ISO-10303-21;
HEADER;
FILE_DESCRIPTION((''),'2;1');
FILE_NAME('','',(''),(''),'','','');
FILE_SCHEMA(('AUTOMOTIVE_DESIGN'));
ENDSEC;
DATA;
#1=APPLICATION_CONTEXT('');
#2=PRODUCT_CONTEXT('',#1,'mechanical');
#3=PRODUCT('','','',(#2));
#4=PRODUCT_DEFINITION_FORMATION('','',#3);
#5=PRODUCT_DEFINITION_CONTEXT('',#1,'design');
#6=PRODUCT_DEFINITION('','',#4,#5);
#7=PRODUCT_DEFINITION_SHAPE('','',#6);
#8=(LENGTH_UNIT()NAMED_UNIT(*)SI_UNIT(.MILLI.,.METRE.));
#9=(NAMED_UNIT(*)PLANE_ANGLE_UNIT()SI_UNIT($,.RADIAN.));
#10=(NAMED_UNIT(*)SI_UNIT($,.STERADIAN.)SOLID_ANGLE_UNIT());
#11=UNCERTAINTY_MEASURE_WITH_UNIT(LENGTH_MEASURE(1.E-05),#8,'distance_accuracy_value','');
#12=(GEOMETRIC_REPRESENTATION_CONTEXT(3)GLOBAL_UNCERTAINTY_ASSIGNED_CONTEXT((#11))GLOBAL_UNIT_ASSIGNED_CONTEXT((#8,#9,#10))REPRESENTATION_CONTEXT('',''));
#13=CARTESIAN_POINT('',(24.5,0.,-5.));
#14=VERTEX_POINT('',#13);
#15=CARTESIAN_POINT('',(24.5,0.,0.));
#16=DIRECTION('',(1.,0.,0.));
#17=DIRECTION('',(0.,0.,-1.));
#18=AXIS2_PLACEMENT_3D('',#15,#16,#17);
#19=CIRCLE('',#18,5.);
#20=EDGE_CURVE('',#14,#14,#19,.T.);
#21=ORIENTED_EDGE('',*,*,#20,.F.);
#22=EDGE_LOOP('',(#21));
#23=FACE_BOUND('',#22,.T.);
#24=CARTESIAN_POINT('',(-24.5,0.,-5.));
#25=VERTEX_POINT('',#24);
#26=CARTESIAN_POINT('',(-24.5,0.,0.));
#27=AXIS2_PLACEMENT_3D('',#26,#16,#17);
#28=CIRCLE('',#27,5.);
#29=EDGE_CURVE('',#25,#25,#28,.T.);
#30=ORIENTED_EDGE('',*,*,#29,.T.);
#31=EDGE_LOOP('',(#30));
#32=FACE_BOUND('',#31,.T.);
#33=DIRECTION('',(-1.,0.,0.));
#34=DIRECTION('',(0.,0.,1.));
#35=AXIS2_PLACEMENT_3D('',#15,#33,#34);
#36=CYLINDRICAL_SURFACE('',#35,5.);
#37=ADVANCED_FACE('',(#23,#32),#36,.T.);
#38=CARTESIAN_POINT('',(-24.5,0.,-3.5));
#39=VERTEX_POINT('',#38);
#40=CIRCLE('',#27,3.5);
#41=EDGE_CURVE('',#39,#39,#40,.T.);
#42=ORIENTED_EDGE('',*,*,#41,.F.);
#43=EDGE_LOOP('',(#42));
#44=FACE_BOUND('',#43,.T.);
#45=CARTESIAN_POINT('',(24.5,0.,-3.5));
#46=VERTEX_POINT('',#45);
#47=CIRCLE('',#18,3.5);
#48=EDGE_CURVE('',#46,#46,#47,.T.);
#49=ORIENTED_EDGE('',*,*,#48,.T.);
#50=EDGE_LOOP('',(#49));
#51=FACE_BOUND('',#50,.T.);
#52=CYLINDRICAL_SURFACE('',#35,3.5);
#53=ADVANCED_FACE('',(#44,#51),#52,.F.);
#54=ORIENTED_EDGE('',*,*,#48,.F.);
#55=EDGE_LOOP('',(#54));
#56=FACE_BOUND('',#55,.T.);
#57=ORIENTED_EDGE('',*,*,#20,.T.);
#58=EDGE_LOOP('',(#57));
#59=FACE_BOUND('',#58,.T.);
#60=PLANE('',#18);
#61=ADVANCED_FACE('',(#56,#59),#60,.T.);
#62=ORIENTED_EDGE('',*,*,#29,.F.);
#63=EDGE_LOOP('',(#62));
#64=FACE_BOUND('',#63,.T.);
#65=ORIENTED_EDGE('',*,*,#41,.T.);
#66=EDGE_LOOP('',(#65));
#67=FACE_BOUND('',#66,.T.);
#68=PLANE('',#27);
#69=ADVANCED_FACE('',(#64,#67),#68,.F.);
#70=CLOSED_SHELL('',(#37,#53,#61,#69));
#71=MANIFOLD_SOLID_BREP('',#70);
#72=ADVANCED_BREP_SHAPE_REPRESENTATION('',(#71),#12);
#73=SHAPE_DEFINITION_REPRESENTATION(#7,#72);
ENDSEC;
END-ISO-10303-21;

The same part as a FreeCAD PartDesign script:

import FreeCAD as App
import Part
import Sketcher

V = App.Vector

doc = App.newDocument("Part")
params = doc.addObject("Spreadsheet::Sheet", "Params")
for row, (alias, value) in enumerate([
    ("sketch1_diameter", "10 mm"),
    ("sketch1_diameter2", "7 mm"),
    ("pad1_length", "49 mm"),
], start=1):
    params.set(f"A{row}", alias)
    params.set(f"B{row}", "=" + value)
    params.setAlias(f"B{row}", alias)

body = doc.addObject("PartDesign::Body", "Body")

# Sketch on YZ plane
sketch1 = doc.addObject("Sketcher::SketchObject", "Sketch")
body.addObject(sketch1)
sketch1.AttachmentSupport = (doc.YZ_Plane, [""])
sketch1.MapMode = "FlatFace"
sketch1.addGeometry([
    Part.Circle(V(0, 0, 0), V(0, 0, 1), 5),
    Part.Circle(V(0, 0, 0), V(0, 0, 1), 3.5),
], False)
sketch1.addConstraint([
    Sketcher.Constraint("Coincident", 0, 3, -1, 1),
    Sketcher.Constraint("Coincident", 1, 3, -1, 1),
    Sketcher.Constraint("Diameter", 0, 10.0),
    Sketcher.Constraint("Diameter", 1, 7.0),
])
sketch1.setExpression("Constraints[2]", "Params.sketch1_diameter")
sketch1.setExpression("Constraints[3]", "Params.sketch1_diameter2")
pad1 = doc.addObject("PartDesign::Pad", "Pad")
body.addObject(pad1)
pad1.Profile = sketch1
pad1.setExpression("Length", "Params.pad1_length")
pad1.Midplane = True

doc.recompute()
